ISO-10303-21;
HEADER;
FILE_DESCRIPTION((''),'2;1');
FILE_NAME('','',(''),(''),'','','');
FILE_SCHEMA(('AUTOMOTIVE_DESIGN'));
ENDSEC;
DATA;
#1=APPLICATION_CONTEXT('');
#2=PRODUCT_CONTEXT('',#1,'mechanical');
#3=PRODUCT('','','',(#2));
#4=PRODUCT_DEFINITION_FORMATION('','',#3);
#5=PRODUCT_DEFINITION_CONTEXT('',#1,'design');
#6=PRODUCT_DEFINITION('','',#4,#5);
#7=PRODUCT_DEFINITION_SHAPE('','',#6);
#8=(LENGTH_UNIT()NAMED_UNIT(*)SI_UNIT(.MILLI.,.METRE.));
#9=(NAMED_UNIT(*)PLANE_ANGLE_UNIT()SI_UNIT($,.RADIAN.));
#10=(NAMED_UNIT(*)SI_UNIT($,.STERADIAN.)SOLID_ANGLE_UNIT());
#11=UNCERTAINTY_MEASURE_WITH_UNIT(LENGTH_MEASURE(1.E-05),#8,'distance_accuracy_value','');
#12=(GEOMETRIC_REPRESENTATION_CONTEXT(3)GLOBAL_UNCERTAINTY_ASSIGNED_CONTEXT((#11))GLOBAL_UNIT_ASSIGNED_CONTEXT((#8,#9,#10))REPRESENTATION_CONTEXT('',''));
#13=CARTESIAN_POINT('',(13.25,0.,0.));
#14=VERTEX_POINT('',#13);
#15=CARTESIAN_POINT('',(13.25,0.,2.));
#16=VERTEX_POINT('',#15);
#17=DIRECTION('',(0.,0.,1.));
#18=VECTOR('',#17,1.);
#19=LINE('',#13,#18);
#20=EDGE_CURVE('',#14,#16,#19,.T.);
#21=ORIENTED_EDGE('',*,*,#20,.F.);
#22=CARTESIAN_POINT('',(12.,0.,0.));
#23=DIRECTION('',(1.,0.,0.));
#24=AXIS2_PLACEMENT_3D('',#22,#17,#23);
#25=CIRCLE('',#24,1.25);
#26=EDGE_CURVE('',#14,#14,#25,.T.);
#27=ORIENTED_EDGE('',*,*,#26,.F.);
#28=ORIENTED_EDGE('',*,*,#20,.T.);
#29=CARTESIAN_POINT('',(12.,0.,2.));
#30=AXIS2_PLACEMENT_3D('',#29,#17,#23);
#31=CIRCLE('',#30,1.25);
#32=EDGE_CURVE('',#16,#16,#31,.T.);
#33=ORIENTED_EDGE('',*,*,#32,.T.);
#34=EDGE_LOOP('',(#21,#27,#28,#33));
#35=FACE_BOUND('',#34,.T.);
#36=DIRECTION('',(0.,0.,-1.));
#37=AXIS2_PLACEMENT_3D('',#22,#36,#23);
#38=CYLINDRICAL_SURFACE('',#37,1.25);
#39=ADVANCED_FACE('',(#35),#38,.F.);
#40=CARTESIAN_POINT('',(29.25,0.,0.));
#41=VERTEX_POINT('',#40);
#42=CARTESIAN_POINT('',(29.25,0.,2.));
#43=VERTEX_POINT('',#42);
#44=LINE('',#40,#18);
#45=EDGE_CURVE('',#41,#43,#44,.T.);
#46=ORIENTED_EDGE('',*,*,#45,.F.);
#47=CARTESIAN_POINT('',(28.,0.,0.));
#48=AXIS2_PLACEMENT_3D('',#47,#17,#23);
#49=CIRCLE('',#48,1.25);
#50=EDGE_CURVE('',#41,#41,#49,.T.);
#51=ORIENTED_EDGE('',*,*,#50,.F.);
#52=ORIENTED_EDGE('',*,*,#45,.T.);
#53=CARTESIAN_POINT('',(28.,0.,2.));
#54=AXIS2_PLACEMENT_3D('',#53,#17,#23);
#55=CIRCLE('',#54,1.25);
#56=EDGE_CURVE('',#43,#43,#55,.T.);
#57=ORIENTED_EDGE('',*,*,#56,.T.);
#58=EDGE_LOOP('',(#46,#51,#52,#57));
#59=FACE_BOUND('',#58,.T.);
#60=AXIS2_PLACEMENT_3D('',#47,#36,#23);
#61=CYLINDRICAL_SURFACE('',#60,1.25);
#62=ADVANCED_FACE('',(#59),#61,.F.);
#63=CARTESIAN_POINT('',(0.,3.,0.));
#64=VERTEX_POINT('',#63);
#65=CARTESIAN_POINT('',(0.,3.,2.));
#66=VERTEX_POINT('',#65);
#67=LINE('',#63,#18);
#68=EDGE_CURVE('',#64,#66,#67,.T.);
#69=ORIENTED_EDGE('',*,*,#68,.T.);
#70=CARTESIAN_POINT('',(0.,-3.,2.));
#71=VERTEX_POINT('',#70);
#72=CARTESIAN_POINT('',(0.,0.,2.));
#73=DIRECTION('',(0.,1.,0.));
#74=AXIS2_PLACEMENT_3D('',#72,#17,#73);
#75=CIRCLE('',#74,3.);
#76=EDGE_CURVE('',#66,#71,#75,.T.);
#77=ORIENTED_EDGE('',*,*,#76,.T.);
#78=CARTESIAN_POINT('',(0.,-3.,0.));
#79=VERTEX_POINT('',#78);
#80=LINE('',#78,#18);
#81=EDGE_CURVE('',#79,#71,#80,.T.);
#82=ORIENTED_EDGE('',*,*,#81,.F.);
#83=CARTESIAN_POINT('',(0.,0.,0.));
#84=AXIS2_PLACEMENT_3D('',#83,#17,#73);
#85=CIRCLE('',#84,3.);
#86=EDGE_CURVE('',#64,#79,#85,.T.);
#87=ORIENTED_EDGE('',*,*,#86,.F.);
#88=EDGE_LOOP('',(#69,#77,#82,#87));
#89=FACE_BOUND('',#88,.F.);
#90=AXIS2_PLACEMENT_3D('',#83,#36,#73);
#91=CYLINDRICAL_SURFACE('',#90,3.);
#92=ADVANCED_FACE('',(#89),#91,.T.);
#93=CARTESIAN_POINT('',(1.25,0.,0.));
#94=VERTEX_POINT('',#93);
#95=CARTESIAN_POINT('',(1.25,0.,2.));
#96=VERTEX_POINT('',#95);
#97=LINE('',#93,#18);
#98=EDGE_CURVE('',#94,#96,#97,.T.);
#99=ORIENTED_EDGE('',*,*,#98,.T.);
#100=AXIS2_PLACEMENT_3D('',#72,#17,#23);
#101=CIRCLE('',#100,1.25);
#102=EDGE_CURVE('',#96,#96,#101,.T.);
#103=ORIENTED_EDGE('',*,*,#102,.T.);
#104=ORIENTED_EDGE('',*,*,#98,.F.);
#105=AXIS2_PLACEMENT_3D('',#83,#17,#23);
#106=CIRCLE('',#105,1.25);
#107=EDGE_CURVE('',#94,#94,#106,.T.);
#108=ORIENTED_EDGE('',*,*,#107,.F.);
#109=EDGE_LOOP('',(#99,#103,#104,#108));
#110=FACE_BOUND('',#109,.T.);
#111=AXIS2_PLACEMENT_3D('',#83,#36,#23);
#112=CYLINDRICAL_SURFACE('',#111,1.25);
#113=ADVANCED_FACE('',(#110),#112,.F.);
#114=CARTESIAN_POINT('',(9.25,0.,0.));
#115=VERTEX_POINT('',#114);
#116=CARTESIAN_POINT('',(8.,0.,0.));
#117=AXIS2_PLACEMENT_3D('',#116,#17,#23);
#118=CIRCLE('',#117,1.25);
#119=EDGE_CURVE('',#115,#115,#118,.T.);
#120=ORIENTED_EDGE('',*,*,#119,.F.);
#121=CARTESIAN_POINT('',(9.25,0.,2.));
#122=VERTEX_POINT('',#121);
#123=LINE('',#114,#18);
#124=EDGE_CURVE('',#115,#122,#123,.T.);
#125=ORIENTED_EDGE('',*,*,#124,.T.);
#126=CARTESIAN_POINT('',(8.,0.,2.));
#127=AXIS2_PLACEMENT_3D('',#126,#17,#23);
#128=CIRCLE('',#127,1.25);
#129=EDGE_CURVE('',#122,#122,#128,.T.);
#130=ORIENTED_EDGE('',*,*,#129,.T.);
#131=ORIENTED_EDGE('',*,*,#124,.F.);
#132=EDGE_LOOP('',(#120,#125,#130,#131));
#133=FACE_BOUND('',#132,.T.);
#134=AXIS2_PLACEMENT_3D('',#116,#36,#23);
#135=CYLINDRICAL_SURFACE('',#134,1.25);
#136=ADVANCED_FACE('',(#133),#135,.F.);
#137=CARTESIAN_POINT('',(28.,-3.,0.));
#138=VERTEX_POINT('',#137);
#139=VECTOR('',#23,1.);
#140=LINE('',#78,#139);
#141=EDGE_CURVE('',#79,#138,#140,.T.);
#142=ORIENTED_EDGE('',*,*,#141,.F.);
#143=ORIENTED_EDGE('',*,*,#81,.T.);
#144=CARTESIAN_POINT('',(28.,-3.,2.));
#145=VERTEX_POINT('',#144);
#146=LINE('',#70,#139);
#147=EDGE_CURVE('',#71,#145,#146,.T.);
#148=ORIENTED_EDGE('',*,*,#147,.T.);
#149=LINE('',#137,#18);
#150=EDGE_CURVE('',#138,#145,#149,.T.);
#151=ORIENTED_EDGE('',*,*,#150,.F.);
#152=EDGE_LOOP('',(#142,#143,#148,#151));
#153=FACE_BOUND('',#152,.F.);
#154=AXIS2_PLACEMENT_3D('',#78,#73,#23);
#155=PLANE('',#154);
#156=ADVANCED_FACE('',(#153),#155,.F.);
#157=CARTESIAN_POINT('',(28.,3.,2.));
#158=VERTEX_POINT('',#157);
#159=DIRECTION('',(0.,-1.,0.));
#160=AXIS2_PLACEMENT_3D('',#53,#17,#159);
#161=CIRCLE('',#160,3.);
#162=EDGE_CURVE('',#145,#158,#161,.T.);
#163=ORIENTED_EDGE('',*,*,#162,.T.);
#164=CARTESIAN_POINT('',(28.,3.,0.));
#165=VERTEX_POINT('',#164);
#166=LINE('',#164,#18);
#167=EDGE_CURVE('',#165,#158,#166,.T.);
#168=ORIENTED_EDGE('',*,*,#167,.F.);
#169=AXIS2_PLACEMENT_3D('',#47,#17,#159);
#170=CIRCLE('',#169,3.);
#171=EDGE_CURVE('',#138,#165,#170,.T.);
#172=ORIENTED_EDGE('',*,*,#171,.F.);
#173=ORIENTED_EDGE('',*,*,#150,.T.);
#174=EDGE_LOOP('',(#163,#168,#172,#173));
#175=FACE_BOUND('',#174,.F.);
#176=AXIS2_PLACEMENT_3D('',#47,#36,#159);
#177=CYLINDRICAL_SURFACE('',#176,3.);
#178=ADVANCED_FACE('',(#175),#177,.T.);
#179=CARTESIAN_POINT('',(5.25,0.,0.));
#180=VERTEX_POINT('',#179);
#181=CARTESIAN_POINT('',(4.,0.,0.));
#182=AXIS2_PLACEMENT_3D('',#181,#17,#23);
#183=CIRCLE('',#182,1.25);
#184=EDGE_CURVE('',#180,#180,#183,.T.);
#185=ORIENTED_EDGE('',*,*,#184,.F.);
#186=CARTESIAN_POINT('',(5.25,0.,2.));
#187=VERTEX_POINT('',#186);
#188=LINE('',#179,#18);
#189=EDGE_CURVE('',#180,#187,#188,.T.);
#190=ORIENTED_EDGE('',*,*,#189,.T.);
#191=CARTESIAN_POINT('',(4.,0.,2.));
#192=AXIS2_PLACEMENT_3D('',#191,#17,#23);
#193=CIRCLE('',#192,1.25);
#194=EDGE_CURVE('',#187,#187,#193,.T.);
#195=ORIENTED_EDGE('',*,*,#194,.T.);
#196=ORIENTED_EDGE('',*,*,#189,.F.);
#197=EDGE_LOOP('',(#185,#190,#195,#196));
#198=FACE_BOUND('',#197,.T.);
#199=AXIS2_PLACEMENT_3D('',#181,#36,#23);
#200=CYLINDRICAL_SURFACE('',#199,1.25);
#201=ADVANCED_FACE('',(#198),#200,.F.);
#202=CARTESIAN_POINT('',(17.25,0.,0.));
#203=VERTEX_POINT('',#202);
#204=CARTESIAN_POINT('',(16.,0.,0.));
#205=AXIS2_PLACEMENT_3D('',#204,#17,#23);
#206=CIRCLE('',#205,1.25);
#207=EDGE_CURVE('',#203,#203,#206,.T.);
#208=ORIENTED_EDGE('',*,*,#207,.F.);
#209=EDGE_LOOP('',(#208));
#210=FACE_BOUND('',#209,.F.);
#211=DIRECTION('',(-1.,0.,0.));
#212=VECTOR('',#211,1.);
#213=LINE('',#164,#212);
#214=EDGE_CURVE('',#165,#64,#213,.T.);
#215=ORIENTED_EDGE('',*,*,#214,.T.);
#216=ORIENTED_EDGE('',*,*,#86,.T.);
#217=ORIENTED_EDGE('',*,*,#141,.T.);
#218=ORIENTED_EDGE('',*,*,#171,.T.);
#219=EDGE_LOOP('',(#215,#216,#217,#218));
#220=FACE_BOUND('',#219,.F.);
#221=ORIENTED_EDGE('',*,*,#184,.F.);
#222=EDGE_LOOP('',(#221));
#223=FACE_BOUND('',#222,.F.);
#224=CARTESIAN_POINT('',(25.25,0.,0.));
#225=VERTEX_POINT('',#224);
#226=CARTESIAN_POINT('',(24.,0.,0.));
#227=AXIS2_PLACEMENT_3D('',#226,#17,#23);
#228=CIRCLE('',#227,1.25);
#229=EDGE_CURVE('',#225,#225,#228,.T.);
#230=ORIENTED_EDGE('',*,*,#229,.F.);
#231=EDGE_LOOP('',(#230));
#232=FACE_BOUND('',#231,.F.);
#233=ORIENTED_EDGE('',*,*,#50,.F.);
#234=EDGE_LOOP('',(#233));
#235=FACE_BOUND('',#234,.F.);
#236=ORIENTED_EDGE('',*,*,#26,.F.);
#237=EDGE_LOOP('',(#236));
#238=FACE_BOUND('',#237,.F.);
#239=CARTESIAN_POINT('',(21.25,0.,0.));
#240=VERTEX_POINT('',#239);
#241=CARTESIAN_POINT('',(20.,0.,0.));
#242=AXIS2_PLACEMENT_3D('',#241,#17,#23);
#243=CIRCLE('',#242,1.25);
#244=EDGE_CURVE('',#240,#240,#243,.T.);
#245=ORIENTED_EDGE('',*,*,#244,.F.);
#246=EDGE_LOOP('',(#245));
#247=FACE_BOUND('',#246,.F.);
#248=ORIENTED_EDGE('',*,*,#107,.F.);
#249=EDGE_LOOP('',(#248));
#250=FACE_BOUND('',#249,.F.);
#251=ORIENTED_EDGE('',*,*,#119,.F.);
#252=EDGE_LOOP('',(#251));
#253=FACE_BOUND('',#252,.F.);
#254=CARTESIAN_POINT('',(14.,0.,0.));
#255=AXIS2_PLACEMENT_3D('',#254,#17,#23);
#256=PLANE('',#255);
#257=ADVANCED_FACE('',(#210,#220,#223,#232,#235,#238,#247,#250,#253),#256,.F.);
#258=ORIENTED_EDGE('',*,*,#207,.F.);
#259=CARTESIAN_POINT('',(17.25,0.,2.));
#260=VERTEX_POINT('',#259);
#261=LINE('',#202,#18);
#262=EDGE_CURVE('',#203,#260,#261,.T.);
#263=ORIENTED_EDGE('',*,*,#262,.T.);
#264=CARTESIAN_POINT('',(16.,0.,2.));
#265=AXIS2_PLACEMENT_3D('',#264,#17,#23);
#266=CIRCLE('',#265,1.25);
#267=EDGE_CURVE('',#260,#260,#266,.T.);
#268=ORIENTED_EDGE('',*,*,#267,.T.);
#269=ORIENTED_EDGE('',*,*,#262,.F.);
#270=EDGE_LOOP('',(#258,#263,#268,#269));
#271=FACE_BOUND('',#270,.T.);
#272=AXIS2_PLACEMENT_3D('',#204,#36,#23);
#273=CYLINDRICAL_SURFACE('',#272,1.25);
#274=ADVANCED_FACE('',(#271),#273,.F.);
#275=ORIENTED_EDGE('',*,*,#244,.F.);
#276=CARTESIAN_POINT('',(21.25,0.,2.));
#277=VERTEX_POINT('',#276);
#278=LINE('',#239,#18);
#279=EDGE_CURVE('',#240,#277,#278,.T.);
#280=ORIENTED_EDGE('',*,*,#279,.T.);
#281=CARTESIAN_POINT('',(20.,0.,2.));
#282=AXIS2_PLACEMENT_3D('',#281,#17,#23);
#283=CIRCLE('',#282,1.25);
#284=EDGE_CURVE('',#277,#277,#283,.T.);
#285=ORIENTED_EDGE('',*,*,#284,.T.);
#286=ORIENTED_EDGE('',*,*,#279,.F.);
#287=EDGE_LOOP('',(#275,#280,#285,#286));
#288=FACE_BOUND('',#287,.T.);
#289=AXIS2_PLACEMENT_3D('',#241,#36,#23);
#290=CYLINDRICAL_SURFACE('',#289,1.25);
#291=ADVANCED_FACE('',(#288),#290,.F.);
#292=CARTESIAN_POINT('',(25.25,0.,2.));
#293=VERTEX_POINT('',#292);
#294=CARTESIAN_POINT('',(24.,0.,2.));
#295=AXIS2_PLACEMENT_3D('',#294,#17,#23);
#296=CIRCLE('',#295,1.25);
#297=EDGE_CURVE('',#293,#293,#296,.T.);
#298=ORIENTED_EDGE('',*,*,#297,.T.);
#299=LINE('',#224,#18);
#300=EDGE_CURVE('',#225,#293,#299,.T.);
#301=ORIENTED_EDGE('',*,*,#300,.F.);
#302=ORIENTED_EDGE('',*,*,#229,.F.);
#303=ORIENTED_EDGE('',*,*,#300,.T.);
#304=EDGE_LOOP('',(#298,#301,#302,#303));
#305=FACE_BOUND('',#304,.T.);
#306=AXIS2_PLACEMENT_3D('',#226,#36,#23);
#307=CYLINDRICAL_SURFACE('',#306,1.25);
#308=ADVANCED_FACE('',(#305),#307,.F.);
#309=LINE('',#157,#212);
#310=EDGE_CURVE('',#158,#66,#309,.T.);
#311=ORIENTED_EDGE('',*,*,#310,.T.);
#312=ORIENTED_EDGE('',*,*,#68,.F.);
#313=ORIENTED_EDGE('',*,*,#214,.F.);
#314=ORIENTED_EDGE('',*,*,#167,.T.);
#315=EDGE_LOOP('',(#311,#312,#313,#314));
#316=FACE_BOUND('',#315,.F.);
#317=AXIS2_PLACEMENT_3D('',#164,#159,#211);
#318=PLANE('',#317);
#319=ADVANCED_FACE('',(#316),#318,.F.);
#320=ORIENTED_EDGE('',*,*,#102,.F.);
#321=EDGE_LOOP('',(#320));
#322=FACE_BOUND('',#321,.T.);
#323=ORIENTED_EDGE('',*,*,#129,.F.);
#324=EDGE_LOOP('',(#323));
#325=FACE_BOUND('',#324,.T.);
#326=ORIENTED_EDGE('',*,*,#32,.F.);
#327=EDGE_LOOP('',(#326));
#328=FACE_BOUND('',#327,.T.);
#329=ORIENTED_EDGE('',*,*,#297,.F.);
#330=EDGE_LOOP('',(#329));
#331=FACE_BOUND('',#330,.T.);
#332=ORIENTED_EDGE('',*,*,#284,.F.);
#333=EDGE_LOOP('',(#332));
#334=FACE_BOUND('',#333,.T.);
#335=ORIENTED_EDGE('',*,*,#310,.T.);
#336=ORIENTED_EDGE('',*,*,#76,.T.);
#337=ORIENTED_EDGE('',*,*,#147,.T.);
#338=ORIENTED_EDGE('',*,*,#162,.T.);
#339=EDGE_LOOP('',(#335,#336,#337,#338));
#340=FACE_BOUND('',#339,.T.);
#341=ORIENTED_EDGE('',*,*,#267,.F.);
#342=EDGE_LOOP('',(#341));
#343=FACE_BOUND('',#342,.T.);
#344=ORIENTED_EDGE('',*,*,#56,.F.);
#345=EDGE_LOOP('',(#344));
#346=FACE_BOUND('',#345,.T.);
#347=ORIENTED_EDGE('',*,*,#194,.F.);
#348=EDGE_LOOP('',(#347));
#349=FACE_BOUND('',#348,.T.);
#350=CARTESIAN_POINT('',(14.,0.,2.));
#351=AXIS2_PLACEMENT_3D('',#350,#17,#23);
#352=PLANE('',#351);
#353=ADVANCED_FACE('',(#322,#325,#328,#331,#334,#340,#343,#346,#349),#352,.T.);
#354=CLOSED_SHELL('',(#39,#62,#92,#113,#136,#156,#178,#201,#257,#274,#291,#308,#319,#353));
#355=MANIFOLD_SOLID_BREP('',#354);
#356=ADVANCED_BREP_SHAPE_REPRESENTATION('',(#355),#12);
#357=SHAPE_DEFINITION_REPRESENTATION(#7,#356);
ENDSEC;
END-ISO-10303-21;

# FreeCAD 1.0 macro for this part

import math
import FreeCAD as App
import Part
import Sketcher
Q = App.Units.Quantity

doc = App.newDocument("Part")
body = doc.addObject("PartDesign::Body", "Body")

# Sketch on XY plane
sketch1 = body.newObject("Sketcher::SketchObject", "Sketch")
sketch1.AttachmentSupport = (doc.getObject("XY_Plane"), [""])
sketch1.MapMode = "FlatFace"
sketch1.addGeometry([
    Part.ArcOfCircle(Part.Circle(App.Vector(0, 0, 0), App.Vector(0, 0, 1), 3), math.radians(90), math.radians(270)),  # 0
    Part.LineSegment(App.Vector(0, -3, 0), App.Vector(28, -3, 0)),  # 1
    Part.ArcOfCircle(Part.Circle(App.Vector(28, 0, 0), App.Vector(0, 0, 1), 3), math.radians(-90), math.radians(90)),  # 2
    Part.LineSegment(App.Vector(28, 3, 0), App.Vector(0, 3, 0)),  # 3
    Part.Circle(App.Vector(0, 0, 0), App.Vector(0, 0, 1), 1.2),  # 4
    Part.Circle(App.Vector(4, 0, 0), App.Vector(0, 0, 1), 1.2),  # 5
    Part.Circle(App.Vector(8, 0, 0), App.Vector(0, 0, 1), 1.2),  # 6
    Part.Circle(App.Vector(12, 0, 0), App.Vector(0, 0, 1), 1.2),  # 7
    Part.Circle(App.Vector(16, 0, 0), App.Vector(0, 0, 1), 1.2),  # 8
    Part.Circle(App.Vector(20, 0, 0), App.Vector(0, 0, 1), 1.2),  # 9
    Part.Circle(App.Vector(24, 0, 0), App.Vector(0, 0, 1), 1.2),  # 10
    Part.Circle(App.Vector(28, 0, 0), App.Vector(0, 0, 1), 1.2),  # 11
], False)
sketch1.addConstraint([
    Sketcher.Constraint("Tangent", 0, 2, 1, 1),
    Sketcher.Constraint("Tangent", 1, 2, 2, 1),
    Sketcher.Constraint("Tangent", 2, 2, 3, 1),
    Sketcher.Constraint("Tangent", 3, 2, 0, 1),
    Sketcher.Constraint("Horizontal", 1),
    Sketcher.Constraint("Horizontal", 3),
    Sketcher.Constraint("Coincident", 0, 3, -1, 1),
    Sketcher.Constraint("Coincident", 4, 3, -1, 1),
    Sketcher.Constraint("Coincident", 11, 3, 2, 3),
    Sketcher.Constraint("Equal", 4, 5),
    Sketcher.Constraint("Equal", 5, 6),
    Sketcher.Constraint("Equal", 6, 7),
    Sketcher.Constraint("Equal", 7, 8),
    Sketcher.Constraint("Equal", 8, 9),
    Sketcher.Constraint("Equal", 9, 10),
    Sketcher.Constraint("Equal", 10, 11),
    Sketcher.Constraint("PointOnObject", 5, 3, -1),
    Sketcher.Constraint("PointOnObject", 6, 3, -1),
    Sketcher.Constraint("PointOnObject", 7, 3, -1),
    Sketcher.Constraint("PointOnObject", 8, 3, -1),
    Sketcher.Constraint("PointOnObject", 9, 3, -1),
    Sketcher.Constraint("PointOnObject", 10, 3, -1),
    Sketcher.Constraint("Radius", 0, Q("3 mm")),
    Sketcher.Constraint("Diameter", 4, Q("2.5 mm")),
    Sketcher.Constraint("DistanceX", 1, 1, 1, 2, Q("28 mm")),
    Sketcher.Constraint("DistanceX", -1, 1, 5, 3, Q("4 mm")),
    Sketcher.Constraint("DistanceX", -1, 1, 6, 3, Q("8 mm")),
    Sketcher.Constraint("DistanceX", -1, 1, 7, 3, Q("12 mm")),
    Sketcher.Constraint("DistanceX", -1, 1, 8, 3, Q("16 mm")),
    Sketcher.Constraint("DistanceX", -1, 1, 9, 3, Q("20 mm")),
    Sketcher.Constraint("DistanceX", -1, 1, 10, 3, Q("24 mm")),
])
pad1 = body.newObject("PartDesign::Pad", "Pad")
pad1.Profile = sketch1
pad1.Length = 2

doc.recompute()
